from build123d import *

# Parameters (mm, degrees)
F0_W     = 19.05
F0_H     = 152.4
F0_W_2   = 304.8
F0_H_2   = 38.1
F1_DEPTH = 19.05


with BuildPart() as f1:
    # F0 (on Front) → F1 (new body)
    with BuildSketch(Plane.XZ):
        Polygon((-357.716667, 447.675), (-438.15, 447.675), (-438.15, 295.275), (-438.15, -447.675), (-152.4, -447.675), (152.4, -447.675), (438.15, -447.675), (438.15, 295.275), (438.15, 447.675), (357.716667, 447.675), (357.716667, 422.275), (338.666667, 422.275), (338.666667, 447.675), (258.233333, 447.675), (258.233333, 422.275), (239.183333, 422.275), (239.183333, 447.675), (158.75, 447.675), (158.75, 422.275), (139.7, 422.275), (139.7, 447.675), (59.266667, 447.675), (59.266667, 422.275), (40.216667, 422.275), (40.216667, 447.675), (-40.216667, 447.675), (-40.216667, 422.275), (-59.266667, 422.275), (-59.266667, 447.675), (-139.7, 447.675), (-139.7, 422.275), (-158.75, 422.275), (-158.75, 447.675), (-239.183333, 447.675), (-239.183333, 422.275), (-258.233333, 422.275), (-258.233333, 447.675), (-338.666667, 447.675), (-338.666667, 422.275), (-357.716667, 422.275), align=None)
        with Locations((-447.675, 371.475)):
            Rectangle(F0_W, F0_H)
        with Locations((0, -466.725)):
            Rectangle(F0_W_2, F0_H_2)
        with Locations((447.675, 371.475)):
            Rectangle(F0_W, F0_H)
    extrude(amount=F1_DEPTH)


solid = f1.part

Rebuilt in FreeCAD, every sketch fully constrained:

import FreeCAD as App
import Part
import Sketcher
from FreeCAD import Vector
Q = App.Units.Quantity

doc = App.newDocument("Part")
body = doc.addObject("PartDesign::Body", "Body")

# Sketch on XZ plane
sketch1 = body.newObject("Sketcher::SketchObject", "Sketch")
sketch1.AttachmentSupport = (doc.getObject("XZ_Plane"), [""])
sketch1.MapMode = "FlatFace"
sketch1.addGeometry([
    Part.LineSegment(Vector(-358, 422, 0), Vector(-358, 448, 0)),  # 0
    Part.LineSegment(Vector(-358, 448, 0), Vector(-457, 448, 0)),  # 1
    Part.LineSegment(Vector(-457, 448, 0), Vector(-457, 295, 0)),  # 2
    Part.LineSegment(Vector(-457, 295, 0), Vector(-438, 295, 0)),  # 3
    Part.LineSegment(Vector(-438, 295, 0), Vector(-438, -448, 0)),  # 4
    Part.LineSegment(Vector(-438, -448, 0), Vector(-152, -448, 0)),  # 5
    Part.LineSegment(Vector(-152, -448, 0), Vector(-152, -486, 0)),  # 6
    Part.LineSegment(Vector(-152, -486, 0), Vector(152, -486, 0)),  # 7
    Part.LineSegment(Vector(152, -486, 0), Vector(152, -448, 0)),  # 8
    Part.LineSegment(Vector(152, -448, 0), Vector(438, -448, 0)),  # 9
    Part.LineSegment(Vector(438, -448, 0), Vector(438, 295, 0)),  # 10
    Part.LineSegment(Vector(438, 295, 0), Vector(457, 295, 0)),  # 11
    Part.LineSegment(Vector(457, 295, 0), Vector(457, 448, 0)),  # 12
    Part.LineSegment(Vector(457, 448, 0), Vector(358, 448, 0)),  # 13
    Part.LineSegment(Vector(358, 448, 0), Vector(358, 422, 0)),  # 14
    Part.LineSegment(Vector(358, 422, 0), Vector(339, 422, 0)),  # 15
    Part.LineSegment(Vector(339, 422, 0), Vector(339, 448, 0)),  # 16
    Part.LineSegment(Vector(339, 448, 0), Vector(258, 448, 0)),  # 17
    Part.LineSegment(Vector(258, 448, 0), Vector(258, 422, 0)),  # 18
    Part.LineSegment(Vector(258, 422, 0), Vector(239, 422, 0)),  # 19
    Part.LineSegment(Vector(239, 422, 0), Vector(239, 448, 0)),  # 20
    Part.LineSegment(Vector(239, 448, 0), Vector(159, 448, 0)),  # 21
    Part.LineSegment(Vector(159, 448, 0), Vector(159, 422, 0)),  # 22
    Part.LineSegment(Vector(159, 422, 0), Vector(140, 422, 0)),  # 23
    Part.LineSegment(Vector(140, 422, 0), Vector(140, 448, 0)),  # 24
    Part.LineSegment(Vector(140, 448, 0), Vector(59, 448, 0)),  # 25
    Part.LineSegment(Vector(59, 448, 0), Vector(59, 422, 0)),  # 26
    Part.LineSegment(Vector(59, 422, 0), Vector(40, 422, 0)),  # 27
    Part.LineSegment(Vector(40, 422, 0), Vector(40, 448, 0)),  # 28
    Part.LineSegment(Vector(40, 448, 0), Vector(-40, 448, 0)),  # 29
    Part.LineSegment(Vector(-40, 448, 0), Vector(-40, 422, 0)),  # 30
    Part.LineSegment(Vector(-40, 422, 0), Vector(-59, 422, 0)),  # 31
    Part.LineSegment(Vector(-59, 422, 0), Vector(-59, 448, 0)),  # 32
    Part.LineSegment(Vector(-59, 448, 0), Vector(-140, 448, 0)),  # 33
    Part.LineSegment(Vector(-140, 448, 0), Vector(-140, 422, 0)),  # 34
    Part.LineSegment(Vector(-140, 422, 0), Vector(-159, 422, 0)),  # 35
    Part.LineSegment(Vector(-159, 422, 0), Vector(-159, 448, 0)),  # 36
    Part.LineSegment(Vector(-159, 448, 0), Vector(-239, 448, 0)),  # 37
    Part.LineSegment(Vector(-239, 448, 0), Vector(-239, 422, 0)),  # 38
    Part.LineSegment(Vector(-239, 422, 0), Vector(-258, 422, 0)),  # 39
    Part.LineSegment(Vector(-258, 422, 0), Vector(-258, 448, 0)),  # 40
    Part.LineSegment(Vector(-258, 448, 0), Vector(-339, 448, 0)),  # 41
    Part.LineSegment(Vector(-339, 448, 0), Vector(-339, 422, 0)),  # 42
    Part.LineSegment(Vector(-339, 422, 0), Vector(-358, 422, 0)),  # 43
], False)
sketch1.addConstraint([
    Sketcher.Constraint("Coincident", 0, 2, 1, 1),
    Sketcher.Constraint("Coincident", 1, 2, 2, 1),
    Sketcher.Constraint("Coincident", 2, 2, 3, 1),
    Sketcher.Constraint("Coincident", 3, 2, 4, 1),
    Sketcher.Constraint("Coincident", 4, 2, 5, 1),
    Sketcher.Constraint("Coincident", 5, 2, 6, 1),
    Sketcher.Constraint("Coincident", 6, 2, 7, 1),
    Sketcher.Constraint("Coincident", 7, 2, 8, 1),
    Sketcher.Constraint("Coincident", 8, 2, 9, 1),
    Sketcher.Constraint("Coincident", 9, 2, 10, 1),
    Sketcher.Constraint("Coincident", 10, 2, 11, 1),
    Sketcher.Constraint("Coincident", 11, 2, 12, 1),
    Sketcher.Constraint("Coincident", 12, 2, 13, 1),
    Sketcher.Constraint("Coincident", 13, 2, 14, 1),
    Sketcher.Constraint("Coincident", 14, 2, 15, 1),
    Sketcher.Constraint("Coincident", 15, 2, 16, 1),
    Sketcher.Constraint("Coincident", 16, 2, 17, 1),
    Sketcher.Constraint("Coincident", 17, 2, 18, 1),
    Sketcher.Constraint("Coincident", 18, 2, 19, 1),
    Sketcher.Constraint("Coincident", 19, 2, 20, 1),
    Sketcher.Constraint("Coincident", 20, 2, 21, 1),
    Sketcher.Constraint("Coincident", 21, 2, 22, 1),
    Sketcher.Constraint("Coincident", 22, 2, 23, 1),
    Sketcher.Constraint("Coincident", 23, 2, 24, 1),
    Sketcher.Constraint("Coincident", 24, 2, 25, 1),
    Sketcher.Constraint("Coincident", 25, 2, 26, 1),
    Sketcher.Constraint("Coincident", 26, 2, 27, 1),
    Sketcher.Constraint("Coincident", 27, 2, 28, 1),
    Sketcher.Constraint("Coincident", 28, 2, 29, 1),
    Sketcher.Constraint("Coincident", 29, 2, 30, 1),
    Sketcher.Constraint("Coincident", 30, 2, 31, 1),
    Sketcher.Constraint("Coincident", 31, 2, 32, 1),
    Sketcher.Constraint("Coincident", 32, 2, 33, 1),
    Sketcher.Constraint("Coincident", 33, 2, 34, 1),
    Sketcher.Constraint("Coincident", 34, 2, 35, 1),
    Sketcher.Constraint("Coincident", 35, 2, 36, 1),
    Sketcher.Constraint("Coincident", 36, 2, 37, 1),
    Sketcher.Constraint("Coincident", 37, 2, 38, 1),
    Sketcher.Constraint("Coincident", 38, 2, 39, 1),
    Sketcher.Constraint("Coincident", 39, 2, 40, 1),
    Sketcher.Constraint("Coincident", 40, 2, 41, 1),
    Sketcher.Constraint("Coincident", 41, 2, 42, 1),
    Sketcher.Constraint("Coincident", 42, 2, 43, 1),
    Sketcher.Constraint("Coincident", 43, 2, 0, 1),
    Sketcher.Constraint("Vertical", 0),
    Sketcher.Constraint("Horizontal", 1),
    Sketcher.Constraint("Vertical", 2),
    Sketcher.Constraint("Horizontal", 3),
    Sketcher.Constraint("Vertical", 4),
    Sketcher.Constraint("Horizontal", 5),
    Sketcher.Constraint("Vertical", 6),
    Sketcher.Constraint("Horizontal", 7),
    Sketcher.Constraint("Vertical", 8),
    Sketcher.Constraint("Horizontal", 9),
    Sketcher.Constraint("Vertical", 10),
    Sketcher.Constraint("Horizontal", 11),
    Sketcher.Constraint("Vertical", 12),
    Sketcher.Constraint("Horizontal", 13),
    Sketcher.Constraint("Vertical", 14),
    Sketcher.Constraint("Horizontal", 15),
    Sketcher.Constraint("Vertical", 16),
    Sketcher.Constraint("Horizontal", 17),
    Sketcher.Constraint("Vertical", 18),
    Sketcher.Constraint("Horizontal", 19),
    Sketcher.Constraint("Vertical", 20),
    Sketcher.Constraint("Horizontal", 21),
    Sketcher.Constraint("Vertical", 22),
    Sketcher.Constraint("Horizontal", 23),
    Sketcher.Constraint("Vertical", 24),
    Sketcher.Constraint("Horizontal", 25),
    Sketcher.Constraint("Vertical", 26),
    Sketcher.Constraint("Horizontal", 27),
    Sketcher.Constraint("Vertical", 28),
    Sketcher.Constraint("Horizontal", 29),
    Sketcher.Constraint("Vertical", 30),
    Sketcher.Constraint("Horizontal", 31),
    Sketcher.Constraint("Vertical", 32),
    Sketcher.Constraint("Horizontal", 33),
    Sketcher.Constraint("Vertical", 34),
    Sketcher.Constraint("Horizontal", 35),
    Sketcher.Constraint("Vertical", 36),
    Sketcher.Constraint("Horizontal", 37),
    Sketcher.Constraint("Vertical", 38),
    Sketcher.Constraint("Horizontal", 39),
    Sketcher.Constraint("Vertical", 40),
    Sketcher.Constraint("Horizontal", 41),
    Sketcher.Constraint("Vertical", 42),
    Sketcher.Constraint("Horizontal", 43),
    Sketcher.Constraint("Symmetric", 5, 2, 8, 2, -2),
    Sketcher.Constraint("Symmetric", 3, 2, 10, 2, -2),
    Sketcher.Constraint("Symmetric", 1, 2, 12, 2, -2),
    Sketcher.Constraint("Symmetric", 27, 2, 30, 2, -2),
    Sketcher.Constraint("Symmetric", 25, 2, 32, 2, -2),
    Sketcher.Constraint("Symmetric", 23, 2, 34, 2, -2),
    Sketcher.Constraint("Symmetric", 21, 2, 36, 2, -2),
    Sketcher.Constraint("Symmetric", 19, 2, 38, 2, -2),
    Sketcher.Constraint("Symmetric", 17, 2, 40, 2, -2),
    Sketcher.Constraint("Symmetric", 15, 2, 42, 2, -2),
    Sketcher.Constraint("Horizontal", 13, 2, 16, 2),
    Sketcher.Constraint("Horizontal", 15, 2, 18, 2),
    Sketcher.Constraint("Horizontal", 17, 2, 20, 2),
    Sketcher.Constraint("Horizontal", 19, 2, 22, 2),
    Sketcher.Constraint("Horizontal", 21, 2, 24, 2),
    Sketcher.Constraint("Horizontal", 23, 2, 26, 2),
    Sketcher.Constraint("Horizontal", 25, 2, 28, 2),
    Sketcher.Constraint("Equal", 1, 13),
    Sketcher.Constraint("Equal", 11, 15),
    Sketcher.Constraint("Equal", 15, 19),
    Sketcher.Constraint("Equal", 17, 21),
    Sketcher.Constraint("Equal", 19, 23),
    Sketcher.Constraint("Equal", 21, 25),
    Sketcher.Constraint("Equal", 23, 27),
    Sketcher.Constraint("Equal", 25, 29),
    Sketcher.Constraint("DistanceX", 7, 1, 7, 2, Q("12 in")),
    Sketcher.Constraint("DistanceY", 0, 1, 0, 2, Q("1 in")),
    Sketcher.Constraint("DistanceY", 2, 2, 2, 1, Q("6 in")),
    Sketcher.Constraint("DistanceY", 6, 2, 6, 1, Q("1.5 in")),
    Sketcher.Constraint("DistanceX", 1, 2, -1, 1, Q("18 in")),
    Sketcher.Constraint("DistanceX", 3, 1, 3, 2, Q("0.75 in")),
    Sketcher.Constraint("DistanceY", 4, 2, 4, 1, Q("29.25 in")),
    Sketcher.Constraint("DistanceX", -1, 1, 23, 2, Q("5.5 in")),
    Sketcher.Constraint("DistanceY", -1, 1, 0, 2, Q("17.625 in")),
])
pad1 = body.newObject("PartDesign::Pad", "Pad")
pad1.Profile = sketch1
pad1.Length = Q("0.75 in")

doc.recompute()
